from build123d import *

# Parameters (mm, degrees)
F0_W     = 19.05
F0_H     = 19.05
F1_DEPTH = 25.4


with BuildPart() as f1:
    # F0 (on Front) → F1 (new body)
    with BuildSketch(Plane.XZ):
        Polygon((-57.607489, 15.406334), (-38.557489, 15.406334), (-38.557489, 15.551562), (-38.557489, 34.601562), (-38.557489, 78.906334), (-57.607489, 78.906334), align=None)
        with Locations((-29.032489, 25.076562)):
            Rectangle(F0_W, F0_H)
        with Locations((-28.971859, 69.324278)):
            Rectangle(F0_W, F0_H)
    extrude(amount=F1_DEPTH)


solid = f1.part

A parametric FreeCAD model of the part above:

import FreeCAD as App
import Part
import Sketcher
Q = App.Units.Quantity

doc = App.newDocument("Part")
body = doc.addObject("PartDesign::Body", "Body")
body.AllowCompound = True

sketch1 = body.newObject("Sketcher::SketchObject", "Sketch")
sketch1.AttachmentSupport = (doc.getObject("XZ_Plane"), [""])
sketch1.MapMode = "FlatFace"
sketch1.addGeometry(Part.LineSegment(App.Vector(-57.61, 15.41, 0), App.Vector(-38.56, 15.41, 0)), False)
sketch1.addGeometry(Part.LineSegment(App.Vector(-38.56, 15.41, 0), App.Vector(-38.56, 15.55, 0)), False)
sketch1.addGeometry(Part.LineSegment(App.Vector(-38.56, 15.55, 0), App.Vector(-19.51, 15.55, 0)), False)
sketch1.addGeometry(Part.LineSegment(App.Vector(-19.51, 15.55, 0), App.Vector(-19.51, 34.6, 0)), False)
sketch1.addGeometry(Part.LineSegment(App.Vector(-19.51, 34.6, 0), App.Vector(-38.56, 34.6, 0)), False)
sketch1.addGeometry(Part.LineSegment(App.Vector(-38.56, 34.6, 0), App.Vector(-38.56, 78.91, 0)), False)
sketch1.addGeometry(Part.LineSegment(App.Vector(-38.56, 78.91, 0), App.Vector(-57.61, 78.91, 0)), False)
sketch1.addGeometry(Part.LineSegment(App.Vector(-57.61, 78.91, 0), App.Vector(-57.61, 15.41, 0)), False)
sketch1.addGeometry(Part.LineSegment(App.Vector(-38.5, 78.85, 0), App.Vector(-38.5, 59.8, 0)), False)
sketch1.addGeometry(Part.LineSegment(App.Vector(-38.5, 59.8, 0), App.Vector(-19.45, 59.8, 0)), False)
sketch1.addGeometry(Part.LineSegment(App.Vector(-19.45, 59.8, 0), App.Vector(-19.45, 78.85, 0)), False)
sketch1.addGeometry(Part.LineSegment(App.Vector(-19.45, 78.85, 0), App.Vector(-38.5, 78.85, 0)), False)
sketch1.addConstraint(Sketcher.Constraint("Coincident", 0, 2, 1, 1))
sketch1.addConstraint(Sketcher.Constraint("Coincident", 1, 2, 2, 1))
sketch1.addConstraint(Sketcher.Constraint("Coincident", 2, 2, 3, 1))
sketch1.addConstraint(Sketcher.Constraint("Coincident", 3, 2, 4, 1))
sketch1.addConstraint(Sketcher.Constraint("Coincident", 4, 2, 5, 1))
sketch1.addConstraint(Sketcher.Constraint("Coincident", 5, 2, 6, 1))
sketch1.addConstraint(Sketcher.Constraint("Coincident", 6, 2, 7, 1))
sketch1.addConstraint(Sketcher.Constraint("Coincident", 7, 2, 0, 1))
sketch1.addConstraint(Sketcher.Constraint("Coincident", 8, 2, 9, 1))
sketch1.addConstraint(Sketcher.Constraint("Coincident", 9, 2, 10, 1))
sketch1.addConstraint(Sketcher.Constraint("Coincident", 10, 2, 11, 1))
sketch1.addConstraint(Sketcher.Constraint("Coincident", 11, 2, 8, 1))
sketch1.addConstraint(Sketcher.Constraint("Horizontal", 0))
sketch1.addConstraint(Sketcher.Constraint("Vertical", 1))
sketch1.addConstraint(Sketcher.Constraint("Horizontal", 2))
sketch1.addConstraint(Sketcher.Constraint("Vertical", 3))
sketch1.addConstraint(Sketcher.Constraint("Horizontal", 4))
sketch1.addConstraint(Sketcher.Constraint("Vertical", 5))
sketch1.addConstraint(Sketcher.Constraint("Horizontal", 6))
sketch1.addConstraint(Sketcher.Constraint("Vertical", 7))
sketch1.addConstraint(Sketcher.Constraint("Vertical", 8))
sketch1.addConstraint(Sketcher.Constraint("Horizontal", 9))
sketch1.addConstraint(Sketcher.Constraint("Vertical", 10))
sketch1.addConstraint(Sketcher.Constraint("Horizontal", 11))
sketch1.addConstraint(Sketcher.Constraint("Vertical", 1, 2, 4, 2))
sketch1.addConstraint(Sketcher.Constraint("Equal", 0, 2))
sketch1.addConstraint(Sketcher.Constraint("Equal", 6, 9))
sketch1.addConstraint(Sketcher.Constraint("Equal", 11, 3))
sketch1.addConstraint(Sketcher.Constraint("Equal", 3, 8))
sketch1.addConstraint(Sketcher.Constraint("DistanceY", 7, 2, 7, 1, Q("2.5 in")))
sketch1.addConstraint(Sketcher.Constraint("DistanceX", 0, 1, 0, 2, Q("0.75 in")))
sketch1.addConstraint(Sketcher.Constraint("DistanceY", 1, 1, 1, 2, Q("0.145228 mm")))
sketch1.addConstraint(Sketcher.Constraint("DistanceX", 0, 2, -1, 1, Q("38.557489 mm")))
sketch1.addConstraint(Sketcher.Constraint("DistanceX", 8, 2, -1, 1, Q("38.496859 mm")))
sketch1.addConstraint(Sketcher.Constraint("DistanceY", -1, 1, 10, 2, Q("78.849278 mm")))
sketch1.addConstraint(Sketcher.Constraint("DistanceY", -1, 1, 0, 2, Q("15.406334 mm")))
pad1 = body.newObject("PartDesign::Pad", "Pad")
pad1.Profile = sketch1
pad1.Length = Q("1 in")

doc.recompute()
